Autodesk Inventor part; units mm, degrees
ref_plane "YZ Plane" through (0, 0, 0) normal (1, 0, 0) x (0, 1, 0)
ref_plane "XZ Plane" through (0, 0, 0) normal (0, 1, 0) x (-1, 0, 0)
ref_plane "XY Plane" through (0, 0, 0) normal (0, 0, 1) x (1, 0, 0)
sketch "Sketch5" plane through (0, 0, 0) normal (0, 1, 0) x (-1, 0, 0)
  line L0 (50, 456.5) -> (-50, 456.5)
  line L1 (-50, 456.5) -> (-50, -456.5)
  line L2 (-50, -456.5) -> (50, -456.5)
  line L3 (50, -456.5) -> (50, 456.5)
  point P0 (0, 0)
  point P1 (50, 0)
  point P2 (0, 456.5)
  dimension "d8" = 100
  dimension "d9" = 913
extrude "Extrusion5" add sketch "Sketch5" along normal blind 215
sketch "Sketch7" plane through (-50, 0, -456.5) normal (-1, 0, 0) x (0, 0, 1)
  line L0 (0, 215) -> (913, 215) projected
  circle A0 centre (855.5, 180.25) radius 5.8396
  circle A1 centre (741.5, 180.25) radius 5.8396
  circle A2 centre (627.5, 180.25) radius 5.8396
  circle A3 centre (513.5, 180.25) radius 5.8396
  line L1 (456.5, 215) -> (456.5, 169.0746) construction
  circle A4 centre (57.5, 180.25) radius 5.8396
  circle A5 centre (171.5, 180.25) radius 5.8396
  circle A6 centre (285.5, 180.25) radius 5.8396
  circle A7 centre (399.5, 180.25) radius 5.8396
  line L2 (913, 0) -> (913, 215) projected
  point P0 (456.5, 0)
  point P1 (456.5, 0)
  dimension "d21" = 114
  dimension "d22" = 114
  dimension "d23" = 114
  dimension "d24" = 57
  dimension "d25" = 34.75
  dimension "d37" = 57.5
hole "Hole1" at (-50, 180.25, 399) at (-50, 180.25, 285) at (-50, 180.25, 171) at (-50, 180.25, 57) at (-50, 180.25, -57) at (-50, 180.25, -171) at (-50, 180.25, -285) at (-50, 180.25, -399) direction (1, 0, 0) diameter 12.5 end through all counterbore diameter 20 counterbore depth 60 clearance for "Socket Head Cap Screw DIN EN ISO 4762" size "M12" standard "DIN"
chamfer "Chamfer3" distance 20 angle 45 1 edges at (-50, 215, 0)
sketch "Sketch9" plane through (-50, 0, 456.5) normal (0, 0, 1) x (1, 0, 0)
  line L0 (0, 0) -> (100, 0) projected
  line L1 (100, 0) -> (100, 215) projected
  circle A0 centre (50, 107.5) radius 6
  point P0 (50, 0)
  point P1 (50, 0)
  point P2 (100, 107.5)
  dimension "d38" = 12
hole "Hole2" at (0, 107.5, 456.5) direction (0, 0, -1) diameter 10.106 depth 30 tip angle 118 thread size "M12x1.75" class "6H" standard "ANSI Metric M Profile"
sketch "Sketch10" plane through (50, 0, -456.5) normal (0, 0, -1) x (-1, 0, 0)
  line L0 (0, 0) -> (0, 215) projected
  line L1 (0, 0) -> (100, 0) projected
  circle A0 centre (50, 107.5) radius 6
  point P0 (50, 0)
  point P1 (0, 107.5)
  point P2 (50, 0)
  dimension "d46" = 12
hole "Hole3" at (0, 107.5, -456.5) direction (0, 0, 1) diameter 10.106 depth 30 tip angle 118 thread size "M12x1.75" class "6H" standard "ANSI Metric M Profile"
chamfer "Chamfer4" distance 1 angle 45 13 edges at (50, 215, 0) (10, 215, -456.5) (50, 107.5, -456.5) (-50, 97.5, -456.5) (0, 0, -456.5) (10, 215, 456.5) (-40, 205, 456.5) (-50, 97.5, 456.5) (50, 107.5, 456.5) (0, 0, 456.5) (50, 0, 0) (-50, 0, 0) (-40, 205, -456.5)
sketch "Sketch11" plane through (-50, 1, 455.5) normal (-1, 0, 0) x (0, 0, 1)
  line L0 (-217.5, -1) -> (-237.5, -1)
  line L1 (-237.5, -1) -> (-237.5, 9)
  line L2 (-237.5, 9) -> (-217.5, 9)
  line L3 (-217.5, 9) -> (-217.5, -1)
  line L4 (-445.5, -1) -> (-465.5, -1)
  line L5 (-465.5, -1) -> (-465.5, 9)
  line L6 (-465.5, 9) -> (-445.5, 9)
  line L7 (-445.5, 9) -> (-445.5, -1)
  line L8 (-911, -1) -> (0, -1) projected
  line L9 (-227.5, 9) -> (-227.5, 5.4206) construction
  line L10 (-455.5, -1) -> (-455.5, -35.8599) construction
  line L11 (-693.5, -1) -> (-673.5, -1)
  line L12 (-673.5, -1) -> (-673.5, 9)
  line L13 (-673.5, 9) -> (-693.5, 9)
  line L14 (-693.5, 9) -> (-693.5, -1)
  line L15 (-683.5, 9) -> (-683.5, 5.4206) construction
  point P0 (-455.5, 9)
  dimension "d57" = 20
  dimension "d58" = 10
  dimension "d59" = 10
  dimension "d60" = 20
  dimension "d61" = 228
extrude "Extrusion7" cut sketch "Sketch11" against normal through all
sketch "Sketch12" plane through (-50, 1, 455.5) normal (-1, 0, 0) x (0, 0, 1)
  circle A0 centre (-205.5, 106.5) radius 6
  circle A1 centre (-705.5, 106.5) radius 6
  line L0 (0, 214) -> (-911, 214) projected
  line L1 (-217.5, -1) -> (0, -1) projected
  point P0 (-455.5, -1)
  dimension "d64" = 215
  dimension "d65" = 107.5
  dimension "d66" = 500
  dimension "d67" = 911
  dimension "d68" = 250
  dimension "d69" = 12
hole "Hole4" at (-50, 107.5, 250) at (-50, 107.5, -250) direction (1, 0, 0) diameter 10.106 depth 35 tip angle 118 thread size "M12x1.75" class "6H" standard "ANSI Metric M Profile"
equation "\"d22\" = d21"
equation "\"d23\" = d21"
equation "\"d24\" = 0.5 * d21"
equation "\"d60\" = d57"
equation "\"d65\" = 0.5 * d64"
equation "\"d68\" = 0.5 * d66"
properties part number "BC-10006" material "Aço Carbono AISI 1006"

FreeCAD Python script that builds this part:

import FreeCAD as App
import Part
import Sketcher
Q = App.Units.Quantity


def edges_at(feature, points):
    """Names of the edges that pass closest to the given points."""
    edges = feature.Shape.Edges
    near = lambda p: min(range(len(edges)), key=lambda i: edges[i].distToShape(Part.Vertex(*p))[0])
    return sorted({f"Edge{near(p) + 1}" for p in points})


def add_polygon(sketch, points):
    """Adds a closed chain of lines whose ends are joined by coincident constraints."""
    first, n = sketch.GeometryCount, len(points)
    for a, b in zip(points, points[1:] + points[:1]):
        sketch.addGeometry(Part.LineSegment(App.Vector(*a, 0), App.Vector(*b, 0)), False)
    for i in range(n):
        sketch.addConstraint(Sketcher.Constraint("Coincident", first + i, 2, first + (i + 1) % n, 1))

doc = App.newDocument("Part")
body = doc.addObject("PartDesign::Body", "Body")

sketch1 = body.newObject("Sketcher::SketchObject", "Sketch")
sketch1.AttachmentSupport = (doc.getObject("XZ_Plane"), [""])
sketch1.MapMode = "FlatFace"
add_polygon(sketch1, [(-50, -456), (-50, 456), (50, 456), (50, -456)])
sketch1.addConstraint(Sketcher.Constraint("Vertical", 0))
sketch1.addConstraint(Sketcher.Constraint("Horizontal", 1))
sketch1.addConstraint(Sketcher.Constraint("Vertical", 2))
sketch1.addConstraint(Sketcher.Constraint("Horizontal", 3))
sketch1.addConstraint(Sketcher.Constraint("Symmetric", 0, 2, 2, 2, -1, 1))
sketch1.addConstraint(Sketcher.Constraint("DistanceX", 1, 1, 1, 2, Q("100 mm")))
sketch1.addConstraint(Sketcher.Constraint("DistanceY", 0, 1, 0, 2, Q("913 mm")))
pad1 = body.newObject("PartDesign::Pad", "Pad")
pad1.Profile = sketch1
pad1.Length = 215
pad1.Reversed = True

sketch2 = body.newObject("Sketcher::SketchObject", "Sketch001")
sketch2.AttachmentSupport = (doc.getObject("YZ_Plane"), [""])
sketch2.MapMode = "FlatFace"
sketch2.AttachmentOffset = App.Placement(App.Vector(0, 0, -50), App.Rotation())
sketch2.addGeometry(Part.Circle(App.Vector(180, 399, 0), App.Vector(0, 0, 1), 6), False)
sketch2.addGeometry(Part.Circle(App.Vector(180, 285, 0), App.Vector(0, 0, 1), 6), False)
sketch2.addGeometry(Part.Circle(App.Vector(180, 171, 0), App.Vector(0, 0, 1), 6), False)
sketch2.addGeometry(Part.Circle(App.Vector(180, 57, 0), App.Vector(0, 0, 1), 6), False)
sketch2.addGeometry(Part.Circle(App.Vector(180, -57, 0), App.Vector(0, 0, 1), 6), False)
sketch2.addGeometry(Part.Circle(App.Vector(180, -171, 0), App.Vector(0, 0, 1), 6), False)
sketch2.addGeometry(Part.Circle(App.Vector(180, -285, 0), App.Vector(0, 0, 1), 6), False)
sketch2.addGeometry(Part.Circle(App.Vector(180, -399, 0), App.Vector(0, 0, 1), 6), False)
sketch2.addConstraint(Sketcher.Constraint("Equal", 0, 1))
sketch2.addConstraint(Sketcher.Constraint("Equal", 1, 2))
sketch2.addConstraint(Sketcher.Constraint("Equal", 2, 3))
sketch2.addConstraint(Sketcher.Constraint("Equal", 3, 4))
sketch2.addConstraint(Sketcher.Constraint("Equal", 4, 5))
sketch2.addConstraint(Sketcher.Constraint("Equal", 5, 6))
sketch2.addConstraint(Sketcher.Constraint("Equal", 6, 7))
sketch2.addConstraint(Sketcher.Constraint("Symmetric", 3, 3, 4, 3, -1))
sketch2.addConstraint(Sketcher.Constraint("Symmetric", 2, 3, 5, 3, -1))
sketch2.addConstraint(Sketcher.Constraint("Symmetric", 1, 3, 6, 3, -1))
sketch2.addConstraint(Sketcher.Constraint("Symmetric", 0, 3, 7, 3, -1))
sketch2.addConstraint(Sketcher.Constraint("Vertical", 0, 3, 1, 3))
sketch2.addConstraint(Sketcher.Constraint("Vertical", 1, 3, 2, 3))
sketch2.addConstraint(Sketcher.Constraint("Vertical", 2, 3, 3, 3))
sketch2.addConstraint(Sketcher.Constraint("Diameter", 0, Q("12.5 mm")))
sketch2.addConstraint(Sketcher.Constraint("DistanceY", -1, 1, 0, 3, Q("399 mm")))
sketch2.addConstraint(Sketcher.Constraint("DistanceY", -1, 1, 1, 3, Q("285 mm")))
sketch2.addConstraint(Sketcher.Constraint("DistanceY", -1, 1, 2, 3, Q("171 mm")))
sketch2.addConstraint(Sketcher.Constraint("DistanceY", -1, 1, 3, 3, Q("57 mm")))
sketch2.addConstraint(Sketcher.Constraint("DistanceX", -1, 1, 0, 3, Q("180.25 mm")))
doc.recompute()
hole = body.newObject("PartDesign::Hole", "Hole")
hole.Profile = sketch2
hole.ThreadType = "None"
hole.Diameter = 12.5
hole.DepthType = "ThroughAll"
hole.HoleCutType = "Counterbore"
hole.HoleCutDiameter = 20
hole.HoleCutDepth = 60
hole.Reversed = True
doc.recompute()

chamfer = body.newObject("PartDesign::Chamfer", "Chamfer")
chamfer.Base = (hole, edges_at(hole, [(-50, 215, 0)]))
chamfer.Size = 20

sketch3 = body.newObject("Sketcher::SketchObject", "Sketch002")
sketch3.AttachmentSupport = (doc.getObject("XY_Plane"), [""])
sketch3.MapMode = "FlatFace"
sketch3.AttachmentOffset = App.Placement(App.Vector(0, 0, 456.5), App.Rotation())
sketch3.addGeometry(Part.Circle(App.Vector(0, 108, 0), App.Vector(0, 0, 1), 5), False)
sketch3.addConstraint(Sketcher.Constraint("PointOnObject", 0, 3, -2))
sketch3.addConstraint(Sketcher.Constraint("Diameter", 0, Q("10.106 mm")))
sketch3.addConstraint(Sketcher.Constraint("DistanceY", -1, 1, 0, 3, Q("107.5 mm")))
doc.recompute()
hole2 = body.newObject("PartDesign::Hole", "Hole001")
hole2.Profile = sketch3
hole2.ThreadType = "None"
hole2.Diameter = 10.106
hole2.DepthType = "Dimension"
hole2.Depth = 30
hole2.DrillPoint = "Angled"
hole2.DrillPointAngle = 118

sketch4 = body.newObject("Sketcher::SketchObject", "Sketch003")
sketch4.AttachmentSupport = (doc.getObject("XY_Plane"), [""])
sketch4.MapMode = "FlatFace"
sketch4.AttachmentOffset = App.Placement(App.Vector(0, 0, -456.5), App.Rotation())
sketch4.addGeometry(Part.Circle(App.Vector(0, 108, 0), App.Vector(0, 0, 1), 5), False)
sketch4.addConstraint(Sketcher.Constraint("PointOnObject", 0, 3, -2))
sketch4.addConstraint(Sketcher.Constraint("Diameter", 0, Q("10.106 mm")))
sketch4.addConstraint(Sketcher.Constraint("DistanceY", -1, 1, 0, 3, Q("107.5 mm")))
doc.recompute()
hole3 = body.newObject("PartDesign::Hole", "Hole002")
hole3.Profile = sketch4
hole3.ThreadType = "None"
hole3.Diameter = 10.106
hole3.DepthType = "Dimension"
hole3.Depth = 30
hole3.DrillPoint = "Angled"
hole3.DrillPointAngle = 118
hole3.Reversed = True
doc.recompute()

chamfer2 = body.newObject("PartDesign::Chamfer", "Chamfer001")
chamfer2.Base = (hole3, edges_at(hole3, [
    (50, 215, 0),
    (10, 215, -456.5),
    (50, 107.5, -456.5),
    (-50, 97.5, -456.5),
    (0, 0, -456.5),
    (10, 215, 456.5),
    (-40, 205, 456.5),
    (-50, 97.5, 456.5),
    (50, 107.5, 456.5),
    (0, 0, 456.5),
    (50, 0, 0),
    (-50, 0, 0),
    (-40, 205, -456.5),
]))
chamfer2.Size = 1

sketch5 = body.newObject("Sketcher::SketchObject", "Sketch004")
sketch5.AttachmentSupport = (doc.getObject("YZ_Plane"), [""])
sketch5.MapMode = "FlatFace"
sketch5.AttachmentOffset = App.Placement(App.Vector(0, 0, -50), App.Rotation())
add_polygon(sketch5, [(0, -238), (0, -218), (10, -218), (10, -238)])
add_polygon(sketch5, [(0, -10), (0, 10), (10, 10), (10, -10)])
add_polygon(sketch5, [(0, 218), (0, 238), (10, 238), (10, 218)])
sketch5.addConstraint(Sketcher.Constraint("Vertical", 0))
sketch5.addConstraint(Sketcher.Constraint("Horizontal", 1))
sketch5.addConstraint(Sketcher.Constraint("Vertical", 2))
sketch5.addConstraint(Sketcher.Constraint("Horizontal", 3))
sketch5.addConstraint(Sketcher.Constraint("Vertical", 4))
sketch5.addConstraint(Sketcher.Constraint("Horizontal", 5))
sketch5.addConstraint(Sketcher.Constraint("Vertical", 6))
sketch5.addConstraint(Sketcher.Constraint("Horizontal", 7))
sketch5.addConstraint(Sketcher.Constraint("Vertical", 8))
sketch5.addConstraint(Sketcher.Constraint("Horizontal", 9))
sketch5.addConstraint(Sketcher.Constraint("Vertical", 10))
sketch5.addConstraint(Sketcher.Constraint("Horizontal", 11))
sketch5.addConstraint(Sketcher.Constraint("Symmetric", 4, 2, 7, 2, -1, 1))
sketch5.addConstraint(Sketcher.Constraint("Symmetric", 3, 2, 8, 2, -1, 1))
sketch5.addConstraint(Sketcher.Constraint("Symmetric", 1, 2, 10, 2, -1))
sketch5.addConstraint(Sketcher.Constraint("PointOnObject", 0, 2, -2))
sketch5.addConstraint(Sketcher.Constraint("Vertical", 2, 2, 5, 2))
sketch5.addConstraint(Sketcher.Constraint("Equal", 2, 4))
sketch5.addConstraint(Sketcher.Constraint("DistanceX", 1, 1, 1, 2, Q("10 mm")))
sketch5.addConstraint(Sketcher.Constraint("DistanceY", 0, 1, 0, 2, Q("20 mm")))
sketch5.addConstraint(Sketcher.Constraint("DistanceY", 0, 2, 4, 2, Q("228 mm")))
pocket1 = body.newObject("PartDesign::Pocket", "Pocket")
pocket1.Profile = sketch5
pocket1.Type = "ThroughAll"
pocket1.Reversed = True

sketch6 = body.newObject("Sketcher::SketchObject", "Sketch005")
sketch6.AttachmentSupport = (doc.getObject("YZ_Plane"), [""])
sketch6.MapMode = "FlatFace"
sketch6.AttachmentOffset = App.Placement(App.Vector(0, 0, -50), App.Rotation())
sketch6.addGeometry(Part.Circle(App.Vector(108, 250, 0), App.Vector(0, 0, 1), 5), False)
sketch6.addGeometry(Part.Circle(App.Vector(108, -250, 0), App.Vector(0, 0, 1), 5), False)
sketch6.addConstraint(Sketcher.Constraint("Equal", 0, 1))
sketch6.addConstraint(Sketcher.Constraint("Symmetric", 0, 3, 1, 3, -1))
sketch6.addConstraint(Sketcher.Constraint("Diameter", 0, Q("10.106 mm")))
sketch6.addConstraint(Sketcher.Constraint("DistanceY", -1, 1, 0, 3, Q("250 mm")))
sketch6.addConstraint(Sketcher.Constraint("DistanceX", -1, 1, 0, 3, Q("107.5 mm")))
doc.recompute()
hole4 = body.newObject("PartDesign::Hole", "Hole003")
hole4.Profile = sketch6
hole4.ThreadType = "None"
hole4.Diameter = 10.106
hole4.DepthType = "Dimension"
hole4.Depth = 35
hole4.DrillPoint = "Angled"
hole4.DrillPointAngle = 118
hole4.Reversed = True

doc.recompute()
